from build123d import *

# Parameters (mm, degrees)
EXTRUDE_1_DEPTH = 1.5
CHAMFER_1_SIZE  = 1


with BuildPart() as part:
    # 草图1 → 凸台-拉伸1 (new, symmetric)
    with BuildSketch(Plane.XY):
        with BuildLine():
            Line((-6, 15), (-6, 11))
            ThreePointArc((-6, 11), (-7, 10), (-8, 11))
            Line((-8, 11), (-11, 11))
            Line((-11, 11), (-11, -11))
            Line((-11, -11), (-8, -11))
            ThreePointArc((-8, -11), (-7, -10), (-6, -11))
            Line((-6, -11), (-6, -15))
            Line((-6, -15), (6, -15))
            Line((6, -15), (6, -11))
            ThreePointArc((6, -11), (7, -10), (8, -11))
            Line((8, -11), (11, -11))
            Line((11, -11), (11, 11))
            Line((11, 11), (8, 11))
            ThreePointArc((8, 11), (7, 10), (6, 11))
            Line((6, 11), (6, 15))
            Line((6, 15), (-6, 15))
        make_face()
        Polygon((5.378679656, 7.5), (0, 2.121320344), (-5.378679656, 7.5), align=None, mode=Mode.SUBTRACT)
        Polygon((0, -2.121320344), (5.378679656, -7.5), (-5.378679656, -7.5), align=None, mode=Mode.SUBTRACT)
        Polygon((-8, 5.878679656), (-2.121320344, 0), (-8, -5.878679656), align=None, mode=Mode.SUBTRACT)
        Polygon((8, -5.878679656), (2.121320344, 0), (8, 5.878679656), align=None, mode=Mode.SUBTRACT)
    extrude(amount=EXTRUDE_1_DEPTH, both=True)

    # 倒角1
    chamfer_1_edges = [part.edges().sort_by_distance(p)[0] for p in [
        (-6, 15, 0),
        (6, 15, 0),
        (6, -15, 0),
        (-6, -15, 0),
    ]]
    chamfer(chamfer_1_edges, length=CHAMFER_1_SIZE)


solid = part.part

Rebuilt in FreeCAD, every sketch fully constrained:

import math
import FreeCAD as App
import Part
import Sketcher

V = App.Vector
Q = App.Units.Quantity


def edges_at(feature, points):
    """Names of the edges that pass closest to the given points."""
    edges = feature.Shape.Edges
    near = lambda p: min(range(len(edges)), key=lambda i: edges[i].distToShape(Part.Vertex(*p))[0])
    return sorted({f"Edge{near(p) + 1}" for p in points})

doc = App.newDocument("Part")
body = doc.addObject("PartDesign::Body", "Body")

# Sketch on XY plane
sketch1 = body.newObject("Sketcher::SketchObject", "Sketch")
sketch1.AttachmentSupport = (doc.getObject("XY_Plane"), [""])
sketch1.MapMode = "FlatFace"
sketch1.addGeometry([
    Part.LineSegment(V(-6, 15, 0), V(-6, 11, 0)),  # 0
    Part.ArcOfCircle(Part.Circle(V(-7, 11, 0), V(0, 0, 1), 1), math.radians(180), math.radians(360)),  # 1
    Part.LineSegment(V(-8, 11, 0), V(-11, 11, 0)),  # 2
    Part.LineSegment(V(-11, 11, 0), V(-11, -11, 0)),  # 3
    Part.LineSegment(V(-11, -11, 0), V(-8, -11, 0)),  # 4
    Part.ArcOfCircle(Part.Circle(V(-7, -11, 0), V(0, 0, 1), 1), math.radians(0), math.radians(180)),  # 5
    Part.LineSegment(V(-6, -11, 0), V(-6, -15, 0)),  # 6
    Part.LineSegment(V(-6, -15, 0), V(6, -15, 0)),  # 7
    Part.LineSegment(V(6, -15, 0), V(6, -11, 0)),  # 8
    Part.ArcOfCircle(Part.Circle(V(7, -11, 0), V(0, 0, 1), 1), math.radians(0), math.radians(180)),  # 9
    Part.LineSegment(V(8, -11, 0), V(11, -11, 0)),  # 10
    Part.LineSegment(V(11, -11, 0), V(11, 11, 0)),  # 11
    Part.LineSegment(V(11, 11, 0), V(8, 11, 0)),  # 12
    Part.ArcOfCircle(Part.Circle(V(7, 11, 0), V(0, 0, 1), 1), math.radians(180), math.radians(360)),  # 13
    Part.LineSegment(V(6, 11, 0), V(6, 15, 0)),  # 14
    Part.LineSegment(V(6, 15, 0), V(-6, 15, 0)),  # 15
    Part.LineSegment(V(-5.4, -7.5, 0), V(0, -2.1, 0)),  # 16
    Part.LineSegment(V(0, -2.1, 0), V(5.4, -7.5, 0)),  # 17
    Part.LineSegment(V(5.4, -7.5, 0), V(-5.4, -7.5, 0)),  # 18
    Part.LineSegment(V(-8, -5.9, 0), V(-8, 5.9, 0)),  # 19
    Part.LineSegment(V(-8, 5.9, 0), V(-2.1, 0, 0)),  # 20
    Part.LineSegment(V(-2.1, 0, 0), V(-8, -5.9, 0)),  # 21
    Part.LineSegment(V(8, 5.9, 0), V(8, -5.9, 0)),  # 22
    Part.LineSegment(V(8, -5.9, 0), V(2.1, 0, 0)),  # 23
    Part.LineSegment(V(2.1, 0, 0), V(8, 5.9, 0)),  # 24
    Part.LineSegment(V(-5.4, 7.5, 0), V(5.4, 7.5, 0)),  # 25
    Part.LineSegment(V(5.4, 7.5, 0), V(0, 2.1, 0)),  # 26
    Part.LineSegment(V(0, 2.1, 0), V(-5.4, 7.5, 0)),  # 27
], False)
sketch1.addConstraint([
    Sketcher.Constraint("Tangent", 0, 2, 1, 2),
    Sketcher.Constraint("Coincident", 1, 1, 2, 1),
    Sketcher.Constraint("Coincident", 2, 2, 3, 1),
    Sketcher.Constraint("Coincident", 3, 2, 4, 1),
    Sketcher.Constraint("Coincident", 4, 2, 5, 2),
    Sketcher.Constraint("Tangent", 5, 1, 6, 1),
    Sketcher.Constraint("Coincident", 6, 2, 7, 1),
    Sketcher.Constraint("Coincident", 7, 2, 8, 1),
    Sketcher.Constraint("Tangent", 8, 2, 9, 2),
    Sketcher.Constraint("Coincident", 9, 1, 10, 1),
    Sketcher.Constraint("Coincident", 10, 2, 11, 1),
    Sketcher.Constraint("Coincident", 11, 2, 12, 1),
    Sketcher.Constraint("Coincident", 12, 2, 13, 2),
    Sketcher.Constraint("Tangent", 13, 1, 14, 1),
    Sketcher.Constraint("Coincident", 14, 2, 15, 1),
    Sketcher.Constraint("Coincident", 15, 2, 0, 1),
    Sketcher.Constraint("Coincident", 16, 2, 17, 1),
    Sketcher.Constraint("Coincident", 17, 2, 18, 1),
    Sketcher.Constraint("Coincident", 18, 2, 16, 1),
    Sketcher.Constraint("Coincident", 19, 2, 20, 1),
    Sketcher.Constraint("Coincident", 20, 2, 21, 1),
    Sketcher.Constraint("Coincident", 21, 2, 19, 1),
    Sketcher.Constraint("Coincident", 22, 2, 23, 1),
    Sketcher.Constraint("Coincident", 23, 2, 24, 1),
    Sketcher.Constraint("Coincident", 24, 2, 22, 1),
    Sketcher.Constraint("Coincident", 25, 2, 26, 1),
    Sketcher.Constraint("Coincident", 26, 2, 27, 1),
    Sketcher.Constraint("Coincident", 27, 2, 25, 1),
    Sketcher.Constraint("Vertical", 0),
    Sketcher.Constraint("Horizontal", 2),
    Sketcher.Constraint("Vertical", 3),
    Sketcher.Constraint("Horizontal", 4),
    Sketcher.Constraint("Vertical", 6),
    Sketcher.Constraint("Horizontal", 7),
    Sketcher.Constraint("Vertical", 8),
    Sketcher.Constraint("Horizontal", 10),
    Sketcher.Constraint("Vertical", 11),
    Sketcher.Constraint("Horizontal", 12),
    Sketcher.Constraint("Vertical", 14),
    Sketcher.Constraint("Horizontal", 15),
    Sketcher.Constraint("Horizontal", 18),
    Sketcher.Constraint("Vertical", 19),
    Sketcher.Constraint("Vertical", 22),
    Sketcher.Constraint("Horizontal", 25),
    Sketcher.Constraint("Equal", 1, 5),
    Sketcher.Constraint("Equal", 5, 9),
    Sketcher.Constraint("Equal", 9, 13),
    Sketcher.Constraint("Symmetric", 1, 3, 9, 3, -1, 1),
    Sketcher.Constraint("Symmetric", 5, 3, 13, 3, -1, 1),
    Sketcher.Constraint("Symmetric", 2, 2, 10, 2, -1, 1),
    Sketcher.Constraint("Symmetric", 19, 2, 22, 2, -1, 1),
    Sketcher.Constraint("Symmetric", 20, 2, 23, 2, -1, 1),
    Sketcher.Constraint("Symmetric", 18, 2, 25, 2, -1, 1),
    Sketcher.Constraint("Symmetric", 16, 2, 26, 2, -1, 1),
    Sketcher.Constraint("Symmetric", 5, 3, 9, 3, -2),
    Sketcher.Constraint("PointOnObject", 16, 2, -2),
    Sketcher.Constraint("PointOnObject", 20, 2, -1),
    Sketcher.Constraint("Perpendicular", 16, 17),
    Sketcher.Constraint("Parallel", 17, 20),
    Sketcher.Constraint("Perpendicular", 20, 21),
    Sketcher.Constraint("Perpendicular", 23, 24),
    Sketcher.Constraint("Perpendicular", 26, 27),
    Sketcher.Constraint("Horizontal", 0, 2, 1, 1),
    Sketcher.Constraint("Horizontal", 9, 3, 3, 2),
    Sketcher.Constraint("Horizontal", 2, 2, 11, 2),
    Sketcher.Constraint("Horizontal", 21, 2, 22, 2),
    Sketcher.Constraint("Vertical", 4, 2, 19, 2),
    Sketcher.Constraint("Equal", 0, 6),
    Sketcher.Constraint("Radius", 1, Q("1 mm")),
    Sketcher.Constraint("DistanceX", 2, 2, 2, 1, Q("3 mm")),
    Sketcher.Constraint("DistanceX", 7, 1, 7, 2, Q("12 mm")),
    Sketcher.Constraint("DistanceY", 0, 2, 0, 1, Q("4 mm")),
    Sketcher.Constraint("DistanceY", 3, 2, 3, 1, Q("22 mm")),
    Sketcher.Constraint("DistanceY", 17, 2, -1, 1, Q("7.5 mm")),
    Sketcher.Constraint("DistanceX", 20, 2, 17, 2, Q("7.5 mm")),
    Sketcher.Constraint("Distance", 16, Q("7.606602 mm")),
])
pad1 = body.newObject("PartDesign::Pad", "Pad")
pad1.Profile = sketch1
pad1.Length = 3
pad1.Midplane = True
doc.recompute()

chamfer = body.newObject("PartDesign::Chamfer", "Chamfer")
chamfer.Base = (pad1, edges_at(pad1, [
    (-6, 15, 0),
    (6, 15, 0),
    (6, -15, 0),
    (-6, -15, 0),
]))
chamfer.Size = 1

doc.recompute()
